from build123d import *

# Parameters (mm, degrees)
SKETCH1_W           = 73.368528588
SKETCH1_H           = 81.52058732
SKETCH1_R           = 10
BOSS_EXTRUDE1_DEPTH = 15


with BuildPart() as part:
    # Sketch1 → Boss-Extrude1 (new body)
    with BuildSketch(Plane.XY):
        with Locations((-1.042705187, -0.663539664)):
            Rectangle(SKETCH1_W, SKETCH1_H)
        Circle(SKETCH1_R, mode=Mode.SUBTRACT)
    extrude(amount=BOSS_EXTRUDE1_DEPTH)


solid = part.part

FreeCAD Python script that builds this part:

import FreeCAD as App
import Part
import Sketcher
from FreeCAD import Vector


def add_polygon(sketch, points):
    """Adds a closed chain of lines whose ends are joined by coincident constraints."""
    first, n = sketch.GeometryCount, len(points)
    for a, b in zip(points, points[1:] + points[:1]):
        sketch.addGeometry(Part.LineSegment(App.Vector(*a, 0), App.Vector(*b, 0)), False)
    for i in range(n):
        sketch.addConstraint(Sketcher.Constraint("Coincident", first + i, 2, first + (i + 1) % n, 1))

doc = App.newDocument("Part")
params = doc.addObject("Spreadsheet::Sheet", "Params")
for row, (alias, value) in enumerate([
    ("sketch1_diameter", "20 mm"),
    ("pad1_length", "15 mm"),
], start=1):
    params.set(f"A{row}", alias)
    params.set(f"B{row}", "=" + value)
    params.setAlias(f"B{row}", alias)

body = doc.addObject("PartDesign::Body", "Body")

sketch1 = doc.addObject("Sketcher::SketchObject", "Sketch")
body.addObject(sketch1)
sketch1.AttachmentSupport = (doc.XY_Plane, [""])
sketch1.MapMode = "FlatFace"
add_polygon(sketch1, [(-37.726969, 40.096754), (-37.726969, -41.423833), (35.641559, -41.423833), (35.641559, 40.096754)])
sketch1.addGeometry(Part.Circle(Vector(0, 0, 0), Vector(0, 0, 1), 10), False)
sketch1.addConstraint([
    Sketcher.Constraint("Vertical", 0),
    Sketcher.Constraint("Horizontal", 1),
    Sketcher.Constraint("Vertical", 2),
    Sketcher.Constraint("Horizontal", 3),
    Sketcher.Constraint("Coincident", 4, 3, -1, 1),
    Sketcher.Constraint("Diameter", 4, 20.0),
    Sketcher.Constraint("DistanceX", 1, 1, 1, 2, 73.368529),
    Sketcher.Constraint("DistanceY", 0, 2, 0, 1, 81.520587),
    Sketcher.Constraint("DistanceX", 0, 2, -1, 1, 37.726969),
    Sketcher.Constraint("DistanceY", 0, 2, -1, 1, 41.423833),
])
sketch1.setExpression("Constraints[9]", "Params.sketch1_diameter")
pad1 = doc.addObject("PartDesign::Pad", "Pad")
body.addObject(pad1)
pad1.Profile = sketch1
pad1.setExpression("Length", "Params.pad1_length")

doc.recompute()
